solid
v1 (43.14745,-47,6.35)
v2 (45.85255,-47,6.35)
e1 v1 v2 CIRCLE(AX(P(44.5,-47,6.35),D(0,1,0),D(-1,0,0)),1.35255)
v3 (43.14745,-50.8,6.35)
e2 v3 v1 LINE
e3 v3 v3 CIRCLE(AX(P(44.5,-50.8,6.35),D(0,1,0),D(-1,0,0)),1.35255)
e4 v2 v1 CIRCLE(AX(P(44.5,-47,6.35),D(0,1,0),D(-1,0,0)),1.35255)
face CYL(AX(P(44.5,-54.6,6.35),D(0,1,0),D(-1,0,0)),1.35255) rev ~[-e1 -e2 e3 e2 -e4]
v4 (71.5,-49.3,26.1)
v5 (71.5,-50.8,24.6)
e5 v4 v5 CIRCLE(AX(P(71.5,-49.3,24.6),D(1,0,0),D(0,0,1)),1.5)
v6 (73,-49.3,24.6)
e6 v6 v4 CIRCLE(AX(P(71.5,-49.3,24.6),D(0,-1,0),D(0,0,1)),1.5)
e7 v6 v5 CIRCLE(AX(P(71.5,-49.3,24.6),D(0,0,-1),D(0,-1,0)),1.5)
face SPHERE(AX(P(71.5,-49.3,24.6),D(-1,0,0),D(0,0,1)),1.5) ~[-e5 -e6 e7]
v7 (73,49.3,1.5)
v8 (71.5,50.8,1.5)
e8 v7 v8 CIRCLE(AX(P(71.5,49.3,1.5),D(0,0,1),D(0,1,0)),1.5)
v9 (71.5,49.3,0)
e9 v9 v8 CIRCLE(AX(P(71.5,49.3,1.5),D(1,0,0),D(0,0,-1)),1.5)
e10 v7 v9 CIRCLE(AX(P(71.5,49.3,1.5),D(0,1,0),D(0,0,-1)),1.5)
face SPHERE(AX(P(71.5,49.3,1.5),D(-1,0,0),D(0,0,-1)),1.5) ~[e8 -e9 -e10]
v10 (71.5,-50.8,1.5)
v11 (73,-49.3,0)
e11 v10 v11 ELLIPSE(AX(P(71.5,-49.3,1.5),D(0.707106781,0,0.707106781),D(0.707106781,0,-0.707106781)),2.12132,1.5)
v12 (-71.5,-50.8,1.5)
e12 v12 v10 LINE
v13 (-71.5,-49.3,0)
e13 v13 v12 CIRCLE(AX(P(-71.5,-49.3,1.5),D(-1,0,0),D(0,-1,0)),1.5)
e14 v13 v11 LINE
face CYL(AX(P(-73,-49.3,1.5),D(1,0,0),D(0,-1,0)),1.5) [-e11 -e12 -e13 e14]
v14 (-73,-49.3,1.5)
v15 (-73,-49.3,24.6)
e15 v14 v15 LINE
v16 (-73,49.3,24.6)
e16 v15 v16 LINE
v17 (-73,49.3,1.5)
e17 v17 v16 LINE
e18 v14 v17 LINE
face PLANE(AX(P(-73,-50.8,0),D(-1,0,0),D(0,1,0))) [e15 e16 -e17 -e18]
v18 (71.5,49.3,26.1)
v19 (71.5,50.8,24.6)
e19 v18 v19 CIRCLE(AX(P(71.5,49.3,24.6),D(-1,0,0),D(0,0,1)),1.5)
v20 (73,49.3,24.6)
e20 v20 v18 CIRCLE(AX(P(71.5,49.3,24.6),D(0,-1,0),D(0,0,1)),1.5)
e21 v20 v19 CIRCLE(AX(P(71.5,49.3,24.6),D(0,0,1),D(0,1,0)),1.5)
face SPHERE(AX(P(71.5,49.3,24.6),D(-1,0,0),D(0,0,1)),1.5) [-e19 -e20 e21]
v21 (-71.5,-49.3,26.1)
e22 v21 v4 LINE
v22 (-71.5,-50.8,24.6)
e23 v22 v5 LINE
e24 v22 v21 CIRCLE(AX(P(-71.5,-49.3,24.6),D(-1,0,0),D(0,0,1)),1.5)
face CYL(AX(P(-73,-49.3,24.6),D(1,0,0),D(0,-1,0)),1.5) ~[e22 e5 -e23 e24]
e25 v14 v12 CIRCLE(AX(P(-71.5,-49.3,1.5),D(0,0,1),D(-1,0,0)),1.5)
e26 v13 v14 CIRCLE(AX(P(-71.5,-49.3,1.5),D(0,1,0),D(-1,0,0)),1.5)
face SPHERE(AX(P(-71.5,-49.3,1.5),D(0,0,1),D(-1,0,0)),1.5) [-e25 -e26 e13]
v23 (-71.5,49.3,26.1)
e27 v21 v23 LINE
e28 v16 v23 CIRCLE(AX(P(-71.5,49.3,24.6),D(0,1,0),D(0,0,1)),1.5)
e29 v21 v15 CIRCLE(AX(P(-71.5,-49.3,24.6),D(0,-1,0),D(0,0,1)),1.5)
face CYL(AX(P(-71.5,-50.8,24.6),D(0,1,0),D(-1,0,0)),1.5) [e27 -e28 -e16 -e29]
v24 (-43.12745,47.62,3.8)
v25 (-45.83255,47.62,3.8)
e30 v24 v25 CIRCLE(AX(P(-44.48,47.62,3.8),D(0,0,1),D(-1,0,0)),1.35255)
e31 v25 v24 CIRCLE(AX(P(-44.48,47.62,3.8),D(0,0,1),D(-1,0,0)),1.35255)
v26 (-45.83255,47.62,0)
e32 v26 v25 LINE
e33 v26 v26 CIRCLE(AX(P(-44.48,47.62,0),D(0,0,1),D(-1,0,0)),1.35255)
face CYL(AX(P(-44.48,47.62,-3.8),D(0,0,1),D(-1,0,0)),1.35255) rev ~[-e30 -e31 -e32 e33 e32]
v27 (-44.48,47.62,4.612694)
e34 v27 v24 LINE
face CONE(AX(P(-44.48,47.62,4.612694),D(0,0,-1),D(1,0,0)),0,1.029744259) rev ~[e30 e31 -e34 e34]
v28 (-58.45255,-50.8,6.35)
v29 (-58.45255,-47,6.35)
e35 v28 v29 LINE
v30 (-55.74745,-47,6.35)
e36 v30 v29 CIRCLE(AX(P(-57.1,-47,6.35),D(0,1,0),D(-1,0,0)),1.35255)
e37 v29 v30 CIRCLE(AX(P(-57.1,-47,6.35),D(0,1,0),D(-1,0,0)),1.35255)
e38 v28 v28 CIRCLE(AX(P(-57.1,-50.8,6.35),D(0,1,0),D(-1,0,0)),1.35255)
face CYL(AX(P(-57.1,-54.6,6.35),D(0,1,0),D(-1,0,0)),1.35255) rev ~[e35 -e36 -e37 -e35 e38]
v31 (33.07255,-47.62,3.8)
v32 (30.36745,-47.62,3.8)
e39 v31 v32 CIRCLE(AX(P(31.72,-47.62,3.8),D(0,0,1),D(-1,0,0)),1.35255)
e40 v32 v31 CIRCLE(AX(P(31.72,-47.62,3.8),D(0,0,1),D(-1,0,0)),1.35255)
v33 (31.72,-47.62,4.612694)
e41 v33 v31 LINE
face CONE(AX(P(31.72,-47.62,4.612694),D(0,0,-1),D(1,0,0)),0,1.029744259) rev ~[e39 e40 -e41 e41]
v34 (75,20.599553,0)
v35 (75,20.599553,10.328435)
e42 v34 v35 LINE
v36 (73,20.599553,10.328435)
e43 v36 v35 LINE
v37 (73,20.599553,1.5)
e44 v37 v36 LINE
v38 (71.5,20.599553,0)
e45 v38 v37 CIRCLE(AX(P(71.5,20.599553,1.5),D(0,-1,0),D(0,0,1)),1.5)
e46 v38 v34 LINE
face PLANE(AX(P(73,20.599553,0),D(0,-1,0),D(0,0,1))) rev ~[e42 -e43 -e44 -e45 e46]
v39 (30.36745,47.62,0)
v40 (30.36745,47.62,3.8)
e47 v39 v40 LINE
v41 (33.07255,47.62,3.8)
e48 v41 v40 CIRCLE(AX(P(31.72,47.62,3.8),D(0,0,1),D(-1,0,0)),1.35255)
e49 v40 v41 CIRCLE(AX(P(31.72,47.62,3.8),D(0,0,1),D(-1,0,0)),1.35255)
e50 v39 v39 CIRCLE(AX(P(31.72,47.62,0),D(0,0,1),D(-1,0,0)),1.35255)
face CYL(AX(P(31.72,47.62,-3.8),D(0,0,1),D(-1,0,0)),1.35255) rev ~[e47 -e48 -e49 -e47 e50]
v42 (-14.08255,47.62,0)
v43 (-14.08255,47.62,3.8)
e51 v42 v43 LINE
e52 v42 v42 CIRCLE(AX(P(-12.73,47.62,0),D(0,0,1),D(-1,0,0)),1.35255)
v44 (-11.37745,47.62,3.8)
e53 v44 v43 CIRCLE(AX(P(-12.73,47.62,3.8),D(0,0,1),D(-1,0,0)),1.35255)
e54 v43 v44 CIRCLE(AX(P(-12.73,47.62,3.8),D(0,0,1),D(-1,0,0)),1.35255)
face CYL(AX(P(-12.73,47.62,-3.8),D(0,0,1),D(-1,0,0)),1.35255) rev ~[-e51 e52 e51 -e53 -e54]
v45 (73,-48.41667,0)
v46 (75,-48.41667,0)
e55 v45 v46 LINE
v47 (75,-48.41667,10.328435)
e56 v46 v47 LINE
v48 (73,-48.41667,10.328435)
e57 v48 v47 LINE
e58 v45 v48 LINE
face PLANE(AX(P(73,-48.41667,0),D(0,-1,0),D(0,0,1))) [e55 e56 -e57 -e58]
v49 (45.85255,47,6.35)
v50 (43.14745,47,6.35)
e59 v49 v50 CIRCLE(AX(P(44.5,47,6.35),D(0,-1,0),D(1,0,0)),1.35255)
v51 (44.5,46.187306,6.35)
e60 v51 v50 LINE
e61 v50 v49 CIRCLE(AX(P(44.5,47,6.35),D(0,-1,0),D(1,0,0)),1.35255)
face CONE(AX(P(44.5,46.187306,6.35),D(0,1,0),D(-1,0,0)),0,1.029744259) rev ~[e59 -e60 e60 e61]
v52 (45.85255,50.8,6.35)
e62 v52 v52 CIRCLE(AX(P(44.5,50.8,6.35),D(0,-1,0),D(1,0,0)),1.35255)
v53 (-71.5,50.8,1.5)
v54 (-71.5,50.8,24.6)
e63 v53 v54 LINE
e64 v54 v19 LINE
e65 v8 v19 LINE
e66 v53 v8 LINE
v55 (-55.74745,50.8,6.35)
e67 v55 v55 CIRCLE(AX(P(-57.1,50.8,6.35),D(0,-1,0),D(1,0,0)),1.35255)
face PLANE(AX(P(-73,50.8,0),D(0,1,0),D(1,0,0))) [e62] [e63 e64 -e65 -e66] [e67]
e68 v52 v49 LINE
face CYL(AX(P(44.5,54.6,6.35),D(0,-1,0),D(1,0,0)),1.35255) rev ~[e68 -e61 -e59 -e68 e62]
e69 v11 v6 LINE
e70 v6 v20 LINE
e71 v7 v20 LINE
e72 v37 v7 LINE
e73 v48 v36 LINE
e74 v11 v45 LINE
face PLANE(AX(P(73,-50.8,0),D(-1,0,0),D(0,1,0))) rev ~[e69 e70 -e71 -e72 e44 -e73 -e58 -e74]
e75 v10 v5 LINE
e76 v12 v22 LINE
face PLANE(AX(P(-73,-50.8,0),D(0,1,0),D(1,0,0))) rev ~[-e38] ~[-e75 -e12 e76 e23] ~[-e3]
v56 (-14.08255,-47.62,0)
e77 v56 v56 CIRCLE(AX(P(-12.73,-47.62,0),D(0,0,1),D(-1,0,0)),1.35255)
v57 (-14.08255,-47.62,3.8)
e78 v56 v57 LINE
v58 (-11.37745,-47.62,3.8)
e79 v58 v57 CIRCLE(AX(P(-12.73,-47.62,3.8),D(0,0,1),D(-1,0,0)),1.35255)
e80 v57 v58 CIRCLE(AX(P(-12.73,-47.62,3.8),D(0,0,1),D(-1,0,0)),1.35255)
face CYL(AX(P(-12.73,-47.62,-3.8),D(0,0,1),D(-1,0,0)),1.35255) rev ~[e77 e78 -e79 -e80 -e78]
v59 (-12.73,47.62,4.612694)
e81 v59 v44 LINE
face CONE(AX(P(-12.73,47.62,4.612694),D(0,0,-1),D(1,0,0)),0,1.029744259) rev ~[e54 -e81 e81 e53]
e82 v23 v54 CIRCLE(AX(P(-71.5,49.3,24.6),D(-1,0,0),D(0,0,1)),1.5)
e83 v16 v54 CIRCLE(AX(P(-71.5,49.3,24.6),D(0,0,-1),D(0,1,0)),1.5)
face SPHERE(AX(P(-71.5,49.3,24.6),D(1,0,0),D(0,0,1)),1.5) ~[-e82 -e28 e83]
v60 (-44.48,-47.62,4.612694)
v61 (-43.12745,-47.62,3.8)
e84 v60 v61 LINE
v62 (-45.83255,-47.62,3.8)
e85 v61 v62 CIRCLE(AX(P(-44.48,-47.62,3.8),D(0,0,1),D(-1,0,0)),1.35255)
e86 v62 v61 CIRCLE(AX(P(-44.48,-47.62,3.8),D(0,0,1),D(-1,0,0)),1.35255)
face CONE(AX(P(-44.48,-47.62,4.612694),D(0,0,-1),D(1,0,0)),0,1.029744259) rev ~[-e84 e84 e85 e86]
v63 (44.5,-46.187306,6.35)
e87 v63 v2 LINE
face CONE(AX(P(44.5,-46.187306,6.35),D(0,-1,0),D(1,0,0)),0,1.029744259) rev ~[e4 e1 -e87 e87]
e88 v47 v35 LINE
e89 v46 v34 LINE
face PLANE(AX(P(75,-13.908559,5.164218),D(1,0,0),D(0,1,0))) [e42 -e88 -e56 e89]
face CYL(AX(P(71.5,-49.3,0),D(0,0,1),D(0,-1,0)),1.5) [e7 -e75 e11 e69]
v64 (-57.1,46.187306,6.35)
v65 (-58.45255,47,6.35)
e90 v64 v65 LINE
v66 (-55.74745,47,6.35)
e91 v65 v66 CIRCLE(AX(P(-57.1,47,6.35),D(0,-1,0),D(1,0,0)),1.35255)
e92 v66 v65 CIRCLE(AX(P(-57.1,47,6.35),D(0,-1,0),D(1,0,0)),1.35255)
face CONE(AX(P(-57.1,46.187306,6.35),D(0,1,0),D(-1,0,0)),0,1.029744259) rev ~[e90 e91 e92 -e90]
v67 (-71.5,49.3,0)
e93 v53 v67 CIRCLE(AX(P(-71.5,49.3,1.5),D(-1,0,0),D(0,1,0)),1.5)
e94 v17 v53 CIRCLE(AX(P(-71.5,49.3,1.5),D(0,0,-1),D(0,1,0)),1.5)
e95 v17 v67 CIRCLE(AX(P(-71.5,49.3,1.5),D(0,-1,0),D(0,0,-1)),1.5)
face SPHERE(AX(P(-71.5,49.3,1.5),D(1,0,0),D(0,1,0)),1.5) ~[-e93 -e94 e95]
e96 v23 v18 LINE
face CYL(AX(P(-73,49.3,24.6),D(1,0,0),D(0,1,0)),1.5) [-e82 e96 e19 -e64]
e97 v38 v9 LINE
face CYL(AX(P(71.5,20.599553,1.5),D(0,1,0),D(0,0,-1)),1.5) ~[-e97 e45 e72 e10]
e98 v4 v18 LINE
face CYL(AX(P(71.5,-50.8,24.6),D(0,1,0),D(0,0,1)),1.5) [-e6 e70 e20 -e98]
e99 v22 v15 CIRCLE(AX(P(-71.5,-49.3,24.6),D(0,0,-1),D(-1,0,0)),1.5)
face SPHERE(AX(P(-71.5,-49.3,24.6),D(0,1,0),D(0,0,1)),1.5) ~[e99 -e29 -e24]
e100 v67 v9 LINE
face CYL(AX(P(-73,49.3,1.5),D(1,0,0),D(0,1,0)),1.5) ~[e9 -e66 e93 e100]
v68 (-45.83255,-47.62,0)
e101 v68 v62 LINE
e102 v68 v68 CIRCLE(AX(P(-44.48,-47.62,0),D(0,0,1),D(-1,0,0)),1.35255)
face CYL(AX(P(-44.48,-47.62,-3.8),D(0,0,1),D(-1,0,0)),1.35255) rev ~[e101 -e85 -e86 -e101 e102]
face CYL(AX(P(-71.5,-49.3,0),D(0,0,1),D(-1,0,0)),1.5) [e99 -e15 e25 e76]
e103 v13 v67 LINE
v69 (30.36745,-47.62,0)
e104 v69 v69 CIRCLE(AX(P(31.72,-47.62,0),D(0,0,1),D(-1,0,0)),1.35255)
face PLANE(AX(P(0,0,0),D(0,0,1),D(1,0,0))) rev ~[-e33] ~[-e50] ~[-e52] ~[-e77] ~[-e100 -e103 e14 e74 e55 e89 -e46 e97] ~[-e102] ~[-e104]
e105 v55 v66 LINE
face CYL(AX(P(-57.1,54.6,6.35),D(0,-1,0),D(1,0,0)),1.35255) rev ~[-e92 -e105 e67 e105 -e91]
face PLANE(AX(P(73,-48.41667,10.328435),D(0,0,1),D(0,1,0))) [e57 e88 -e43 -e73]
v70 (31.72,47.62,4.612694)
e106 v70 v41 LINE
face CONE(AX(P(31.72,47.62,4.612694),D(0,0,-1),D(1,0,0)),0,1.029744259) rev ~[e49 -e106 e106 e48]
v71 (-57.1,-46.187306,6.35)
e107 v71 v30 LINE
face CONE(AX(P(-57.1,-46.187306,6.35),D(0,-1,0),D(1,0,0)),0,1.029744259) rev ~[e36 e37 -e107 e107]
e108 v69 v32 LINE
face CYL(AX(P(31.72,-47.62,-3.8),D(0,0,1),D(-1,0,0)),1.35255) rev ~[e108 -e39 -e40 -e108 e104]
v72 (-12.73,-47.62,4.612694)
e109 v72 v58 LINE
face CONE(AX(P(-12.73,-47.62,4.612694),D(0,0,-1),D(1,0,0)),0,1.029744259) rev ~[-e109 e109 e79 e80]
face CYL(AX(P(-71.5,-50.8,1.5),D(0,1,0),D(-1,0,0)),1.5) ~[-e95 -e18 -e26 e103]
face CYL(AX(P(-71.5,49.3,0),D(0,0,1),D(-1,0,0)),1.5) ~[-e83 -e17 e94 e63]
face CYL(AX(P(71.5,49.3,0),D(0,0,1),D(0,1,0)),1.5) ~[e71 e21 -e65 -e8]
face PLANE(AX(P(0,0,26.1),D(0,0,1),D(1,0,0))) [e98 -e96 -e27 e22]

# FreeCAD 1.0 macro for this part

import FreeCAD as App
import Part
import Sketcher
from FreeCAD import Vector


def edges_at(feature, points):
    """Names of the edges that pass closest to the given points."""
    edges = feature.Shape.Edges
    near = lambda p: min(range(len(edges)), key=lambda i: edges[i].distToShape(Part.Vertex(*p))[0])
    return sorted({f"Edge{near(p) + 1}" for p in points})


def add_polygon(sketch, points):
    """Adds a closed chain of lines whose ends are joined by coincident constraints."""
    first, n = sketch.GeometryCount, len(points)
    for a, b in zip(points, points[1:] + points[:1]):
        sketch.addGeometry(Part.LineSegment(App.Vector(*a, 0), App.Vector(*b, 0)), False)
    for i in range(n):
        sketch.addConstraint(Sketcher.Constraint("Coincident", first + i, 2, first + (i + 1) % n, 1))

doc = App.newDocument("Part")
params = doc.addObject("Spreadsheet::Sheet", "Params")
for row, (alias, value) in enumerate([
    ("sketch1_width", "146 mm"),
    ("sketch1_height", "101.6 mm"),
    ("pad1_length", "26.1 mm"),
    ("hole_diameter", "2.7051 mm"),
    ("hole_depth", "3.8 mm"),
    ("hole2_diameter", "2.7051 mm"),
    ("hole2_depth", "3.8 mm"),
    ("hole3_diameter", "2.7051 mm"),
    ("hole3_depth", "3.8 mm"),
    ("pad2_length", "2 mm"),
    ("fillet_radius", "1.5 mm"),
], start=1):
    params.set(f"A{row}", alias)
    params.set(f"B{row}", "=" + value)
    params.setAlias(f"B{row}", alias)

body = doc.addObject("PartDesign::Body", "Body")

# Sketch on XY plane
sketch1 = doc.addObject("Sketcher::SketchObject", "Sketch")
body.addObject(sketch1)
sketch1.AttachmentSupport = (doc.XY_Plane, [""])
sketch1.MapMode = "FlatFace"
add_polygon(sketch1, [(-73, 51), (-73, -51), (73, -51), (73, 51)])  # lines 0-3
sketch1.addConstraint(Sketcher.Constraint("Vertical", 0))
sketch1.addConstraint(Sketcher.Constraint("Horizontal", 1))
sketch1.addConstraint(Sketcher.Constraint("Vertical", 2))
sketch1.addConstraint(Sketcher.Constraint("Horizontal", 3))
sketch1.addConstraint(Sketcher.Constraint("Symmetric", 0, 2, 2, 2, -1, 1))
sketch1.addConstraint(Sketcher.Constraint("DistanceX", 1, 1, 1, 2, 146.0))
sketch1.addConstraint(Sketcher.Constraint("DistanceY", 0, 2, 0, 1, 101.6))
sketch1.setExpression("Constraints[9]", "Params.sketch1_width")
sketch1.setExpression("Constraints[10]", "Params.sketch1_height")
pad1 = doc.addObject("PartDesign::Pad", "Pad")
body.addObject(pad1)
pad1.Profile = sketch1
pad1.setExpression("Length", "Params.pad1_length")

# Sketch on XZ plane
sketch2 = doc.addObject("Sketcher::SketchObject", "Sketch001")
body.addObject(sketch2)
sketch2.AttachmentSupport = (doc.XZ_Plane, [""])
sketch2.MapMode = "FlatFace"
sketch2.AttachmentOffset = App.Placement(Vector(0, 0, -50.8), App.Rotation())
sketch2.addGeometry(Part.Circle(Vector(44.5, 6.3, 0), Vector(0, 0, 1), 1.4), False)
sketch2.addGeometry(Part.Circle(Vector(-57.1, 6.3, 0), Vector(0, 0, 1), 1.4), False)
sketch2.addConstraint(Sketcher.Constraint("Equal", 0, 1))
sketch2.addConstraint(Sketcher.Constraint("Horizontal", 0, 3, 1, 3))
sketch2.addConstraint(Sketcher.Constraint("Diameter", 0, 2.7051))
sketch2.addConstraint(Sketcher.Constraint("DistanceX", -1, 1, 0, 3, 44.5))
sketch2.addConstraint(Sketcher.Constraint("DistanceX", 1, 3, -1, 1, 57.1))
sketch2.addConstraint(Sketcher.Constraint("DistanceY", -1, 1, 0, 3, 6.35))
doc.recompute()
hole = doc.addObject("PartDesign::Hole", "Hole")
body.addObject(hole)
hole.Profile = sketch2
hole.ThreadType = "None"
hole.setExpression("Diameter", "Params.hole_diameter")
hole.DepthType = "Dimension"
hole.setExpression("Depth", "Params.hole_depth")
hole.DrillPoint = "Angled"
hole.DrillPointAngle = 118
hole.Reversed = True

# Sketch on XY plane
sketch3 = doc.addObject("Sketcher::SketchObject", "Sketch002")
body.addObject(sketch3)
sketch3.AttachmentSupport = (doc.XY_Plane, [""])
sketch3.MapMode = "FlatFace"
sketch3.addGeometry(Part.Circle(Vector(-44.5, 47.6, 0), Vector(0, 0, 1), 1.4), False)
sketch3.addGeometry(Part.Circle(Vector(-12.7, 47.6, 0), Vector(0, 0, 1), 1.4), False)
sketch3.addGeometry(Part.Circle(Vector(31.7, 47.6, 0), Vector(0, 0, 1), 1.4), False)
sketch3.addGeometry(Part.Circle(Vector(31.7, -47.6, 0), Vector(0, 0, 1), 1.4), False)
sketch3.addGeometry(Part.Circle(Vector(-12.7, -47.6, 0), Vector(0, 0, 1), 1.4), False)
sketch3.addGeometry(Part.Circle(Vector(-44.5, -47.6, 0), Vector(0, 0, 1), 1.4), False)
sketch3.addConstraint(Sketcher.Constraint("Equal", 0, 1))
sketch3.addConstraint(Sketcher.Constraint("Equal", 1, 2))
sketch3.addConstraint(Sketcher.Constraint("Equal", 2, 3))
sketch3.addConstraint(Sketcher.Constraint("Equal", 3, 4))
sketch3.addConstraint(Sketcher.Constraint("Equal", 4, 5))
sketch3.addConstraint(Sketcher.Constraint("Symmetric", 2, 3, 3, 3, -1))
sketch3.addConstraint(Sketcher.Constraint("Symmetric", 1, 3, 4, 3, -1))
sketch3.addConstraint(Sketcher.Constraint("Symmetric", 0, 3, 5, 3, -1))
sketch3.addConstraint(Sketcher.Constraint("Horizontal", 0, 3, 1, 3))
sketch3.addConstraint(Sketcher.Constraint("Horizontal", 1, 3, 2, 3))
sketch3.addConstraint(Sketcher.Constraint("Diameter", 0, 2.7051))
sketch3.addConstraint(Sketcher.Constraint("DistanceX", 0, 3, 2, 3, 76.2))
sketch3.addConstraint(Sketcher.Constraint("DistanceX", 0, 3, -1, 1, 44.48))
sketch3.addConstraint(Sketcher.Constraint("DistanceY", -1, 1, 0, 3, 47.62))
sketch3.addConstraint(Sketcher.Constraint("DistanceX", 1, 3, -1, 1, 12.73))
doc.recompute()
hole2 = doc.addObject("PartDesign::Hole", "Hole001")
body.addObject(hole2)
hole2.Profile = sketch3
hole2.ThreadType = "None"
hole2.setExpression("Diameter", "Params.hole2_diameter")
hole2.DepthType = "Dimension"
hole2.setExpression("Depth", "Params.hole2_depth")
hole2.DrillPoint = "Angled"
hole2.DrillPointAngle = 118
hole2.Reversed = True

# Sketch on XZ plane
sketch4 = doc.addObject("Sketcher::SketchObject", "Sketch003")
body.addObject(sketch4)
sketch4.AttachmentSupport = (doc.XZ_Plane, [""])
sketch4.MapMode = "FlatFace"
sketch4.AttachmentOffset = App.Placement(Vector(0, 0, 50.8), App.Rotation())
sketch4.addGeometry(Part.Circle(Vector(-57.1, 6.3, 0), Vector(0, 0, 1), 1.4), False)
sketch4.addGeometry(Part.Circle(Vector(44.5, 6.3, 0), Vector(0, 0, 1), 1.4), False)
sketch4.addConstraint(Sketcher.Constraint("Equal", 0, 1))
sketch4.addConstraint(Sketcher.Constraint("Horizontal", 0, 3, 1, 3))
sketch4.addConstraint(Sketcher.Constraint("Diameter", 0, 2.7051))
sketch4.addConstraint(Sketcher.Constraint("DistanceX", 0, 3, -1, 1, 57.1))
sketch4.addConstraint(Sketcher.Constraint("DistanceX", -1, 1, 1, 3, 44.5))
sketch4.addConstraint(Sketcher.Constraint("DistanceY", -1, 1, 0, 3, 6.35))
doc.recompute()
hole3 = doc.addObject("PartDesign::Hole", "Hole002")
body.addObject(hole3)
hole3.Profile = sketch4
hole3.ThreadType = "None"
hole3.setExpression("Diameter", "Params.hole3_diameter")
hole3.DepthType = "Dimension"
hole3.setExpression("Depth", "Params.hole3_depth")
hole3.DrillPoint = "Angled"
hole3.DrillPointAngle = 118

# Sketch on YZ plane
sketch5 = doc.addObject("Sketcher::SketchObject", "Sketch004")
body.addObject(sketch5)
sketch5.AttachmentSupport = (doc.YZ_Plane, [""])
sketch5.MapMode = "FlatFace"
sketch5.AttachmentOffset = App.Placement(Vector(0, 0, 73), App.Rotation())
add_polygon(sketch5, [(-48, 10), (-48, 0), (21, 0), (21, 10)])  # lines 0-3
sketch5.addConstraint(Sketcher.Constraint("Vertical", 0))
sketch5.addConstraint(Sketcher.Constraint("Horizontal", 1))
sketch5.addConstraint(Sketcher.Constraint("Vertical", 2))
sketch5.addConstraint(Sketcher.Constraint("Horizontal", 3))
sketch5.addConstraint(Sketcher.Constraint("PointOnObject", 0, 2, -1))
sketch5.addConstraint(Sketcher.Constraint("DistanceX", 1, 1, 1, 2, 69.016224))
sketch5.addConstraint(Sketcher.Constraint("DistanceY", 0, 2, 0, 1, 10.328435))
sketch5.addConstraint(Sketcher.Constraint("DistanceX", 0, 2, -1, 1, 48.41667))
pad2 = doc.addObject("PartDesign::Pad", "Pad001")
body.addObject(pad2)
pad2.Profile = sketch5
pad2.setExpression("Length", "Params.pad2_length")
doc.recompute()

fillet = doc.addObject("PartDesign::Fillet", "Fillet")
body.addObject(fillet)
fillet.Base = (pad2, edges_at(pad2, [
    (0, 50.8, 0),
    (0, 50.8, 26.1),
    (-73, 0, 26.1),
    (0, -50.8, 26.1),
    (73, 0, 26.1),
    (-73, 50.8, 13.05),
    (-73, -50.8, 13.05),
    (-73, 0, 0),
    (0, -50.8, 0),
    (73, 35.7, 0),
    (73, -50.8, 13.05),
    (73, 50.8, 13.05),
]))
fillet.setExpression("Radius", "Params.fillet_radius")

doc.recompute()
